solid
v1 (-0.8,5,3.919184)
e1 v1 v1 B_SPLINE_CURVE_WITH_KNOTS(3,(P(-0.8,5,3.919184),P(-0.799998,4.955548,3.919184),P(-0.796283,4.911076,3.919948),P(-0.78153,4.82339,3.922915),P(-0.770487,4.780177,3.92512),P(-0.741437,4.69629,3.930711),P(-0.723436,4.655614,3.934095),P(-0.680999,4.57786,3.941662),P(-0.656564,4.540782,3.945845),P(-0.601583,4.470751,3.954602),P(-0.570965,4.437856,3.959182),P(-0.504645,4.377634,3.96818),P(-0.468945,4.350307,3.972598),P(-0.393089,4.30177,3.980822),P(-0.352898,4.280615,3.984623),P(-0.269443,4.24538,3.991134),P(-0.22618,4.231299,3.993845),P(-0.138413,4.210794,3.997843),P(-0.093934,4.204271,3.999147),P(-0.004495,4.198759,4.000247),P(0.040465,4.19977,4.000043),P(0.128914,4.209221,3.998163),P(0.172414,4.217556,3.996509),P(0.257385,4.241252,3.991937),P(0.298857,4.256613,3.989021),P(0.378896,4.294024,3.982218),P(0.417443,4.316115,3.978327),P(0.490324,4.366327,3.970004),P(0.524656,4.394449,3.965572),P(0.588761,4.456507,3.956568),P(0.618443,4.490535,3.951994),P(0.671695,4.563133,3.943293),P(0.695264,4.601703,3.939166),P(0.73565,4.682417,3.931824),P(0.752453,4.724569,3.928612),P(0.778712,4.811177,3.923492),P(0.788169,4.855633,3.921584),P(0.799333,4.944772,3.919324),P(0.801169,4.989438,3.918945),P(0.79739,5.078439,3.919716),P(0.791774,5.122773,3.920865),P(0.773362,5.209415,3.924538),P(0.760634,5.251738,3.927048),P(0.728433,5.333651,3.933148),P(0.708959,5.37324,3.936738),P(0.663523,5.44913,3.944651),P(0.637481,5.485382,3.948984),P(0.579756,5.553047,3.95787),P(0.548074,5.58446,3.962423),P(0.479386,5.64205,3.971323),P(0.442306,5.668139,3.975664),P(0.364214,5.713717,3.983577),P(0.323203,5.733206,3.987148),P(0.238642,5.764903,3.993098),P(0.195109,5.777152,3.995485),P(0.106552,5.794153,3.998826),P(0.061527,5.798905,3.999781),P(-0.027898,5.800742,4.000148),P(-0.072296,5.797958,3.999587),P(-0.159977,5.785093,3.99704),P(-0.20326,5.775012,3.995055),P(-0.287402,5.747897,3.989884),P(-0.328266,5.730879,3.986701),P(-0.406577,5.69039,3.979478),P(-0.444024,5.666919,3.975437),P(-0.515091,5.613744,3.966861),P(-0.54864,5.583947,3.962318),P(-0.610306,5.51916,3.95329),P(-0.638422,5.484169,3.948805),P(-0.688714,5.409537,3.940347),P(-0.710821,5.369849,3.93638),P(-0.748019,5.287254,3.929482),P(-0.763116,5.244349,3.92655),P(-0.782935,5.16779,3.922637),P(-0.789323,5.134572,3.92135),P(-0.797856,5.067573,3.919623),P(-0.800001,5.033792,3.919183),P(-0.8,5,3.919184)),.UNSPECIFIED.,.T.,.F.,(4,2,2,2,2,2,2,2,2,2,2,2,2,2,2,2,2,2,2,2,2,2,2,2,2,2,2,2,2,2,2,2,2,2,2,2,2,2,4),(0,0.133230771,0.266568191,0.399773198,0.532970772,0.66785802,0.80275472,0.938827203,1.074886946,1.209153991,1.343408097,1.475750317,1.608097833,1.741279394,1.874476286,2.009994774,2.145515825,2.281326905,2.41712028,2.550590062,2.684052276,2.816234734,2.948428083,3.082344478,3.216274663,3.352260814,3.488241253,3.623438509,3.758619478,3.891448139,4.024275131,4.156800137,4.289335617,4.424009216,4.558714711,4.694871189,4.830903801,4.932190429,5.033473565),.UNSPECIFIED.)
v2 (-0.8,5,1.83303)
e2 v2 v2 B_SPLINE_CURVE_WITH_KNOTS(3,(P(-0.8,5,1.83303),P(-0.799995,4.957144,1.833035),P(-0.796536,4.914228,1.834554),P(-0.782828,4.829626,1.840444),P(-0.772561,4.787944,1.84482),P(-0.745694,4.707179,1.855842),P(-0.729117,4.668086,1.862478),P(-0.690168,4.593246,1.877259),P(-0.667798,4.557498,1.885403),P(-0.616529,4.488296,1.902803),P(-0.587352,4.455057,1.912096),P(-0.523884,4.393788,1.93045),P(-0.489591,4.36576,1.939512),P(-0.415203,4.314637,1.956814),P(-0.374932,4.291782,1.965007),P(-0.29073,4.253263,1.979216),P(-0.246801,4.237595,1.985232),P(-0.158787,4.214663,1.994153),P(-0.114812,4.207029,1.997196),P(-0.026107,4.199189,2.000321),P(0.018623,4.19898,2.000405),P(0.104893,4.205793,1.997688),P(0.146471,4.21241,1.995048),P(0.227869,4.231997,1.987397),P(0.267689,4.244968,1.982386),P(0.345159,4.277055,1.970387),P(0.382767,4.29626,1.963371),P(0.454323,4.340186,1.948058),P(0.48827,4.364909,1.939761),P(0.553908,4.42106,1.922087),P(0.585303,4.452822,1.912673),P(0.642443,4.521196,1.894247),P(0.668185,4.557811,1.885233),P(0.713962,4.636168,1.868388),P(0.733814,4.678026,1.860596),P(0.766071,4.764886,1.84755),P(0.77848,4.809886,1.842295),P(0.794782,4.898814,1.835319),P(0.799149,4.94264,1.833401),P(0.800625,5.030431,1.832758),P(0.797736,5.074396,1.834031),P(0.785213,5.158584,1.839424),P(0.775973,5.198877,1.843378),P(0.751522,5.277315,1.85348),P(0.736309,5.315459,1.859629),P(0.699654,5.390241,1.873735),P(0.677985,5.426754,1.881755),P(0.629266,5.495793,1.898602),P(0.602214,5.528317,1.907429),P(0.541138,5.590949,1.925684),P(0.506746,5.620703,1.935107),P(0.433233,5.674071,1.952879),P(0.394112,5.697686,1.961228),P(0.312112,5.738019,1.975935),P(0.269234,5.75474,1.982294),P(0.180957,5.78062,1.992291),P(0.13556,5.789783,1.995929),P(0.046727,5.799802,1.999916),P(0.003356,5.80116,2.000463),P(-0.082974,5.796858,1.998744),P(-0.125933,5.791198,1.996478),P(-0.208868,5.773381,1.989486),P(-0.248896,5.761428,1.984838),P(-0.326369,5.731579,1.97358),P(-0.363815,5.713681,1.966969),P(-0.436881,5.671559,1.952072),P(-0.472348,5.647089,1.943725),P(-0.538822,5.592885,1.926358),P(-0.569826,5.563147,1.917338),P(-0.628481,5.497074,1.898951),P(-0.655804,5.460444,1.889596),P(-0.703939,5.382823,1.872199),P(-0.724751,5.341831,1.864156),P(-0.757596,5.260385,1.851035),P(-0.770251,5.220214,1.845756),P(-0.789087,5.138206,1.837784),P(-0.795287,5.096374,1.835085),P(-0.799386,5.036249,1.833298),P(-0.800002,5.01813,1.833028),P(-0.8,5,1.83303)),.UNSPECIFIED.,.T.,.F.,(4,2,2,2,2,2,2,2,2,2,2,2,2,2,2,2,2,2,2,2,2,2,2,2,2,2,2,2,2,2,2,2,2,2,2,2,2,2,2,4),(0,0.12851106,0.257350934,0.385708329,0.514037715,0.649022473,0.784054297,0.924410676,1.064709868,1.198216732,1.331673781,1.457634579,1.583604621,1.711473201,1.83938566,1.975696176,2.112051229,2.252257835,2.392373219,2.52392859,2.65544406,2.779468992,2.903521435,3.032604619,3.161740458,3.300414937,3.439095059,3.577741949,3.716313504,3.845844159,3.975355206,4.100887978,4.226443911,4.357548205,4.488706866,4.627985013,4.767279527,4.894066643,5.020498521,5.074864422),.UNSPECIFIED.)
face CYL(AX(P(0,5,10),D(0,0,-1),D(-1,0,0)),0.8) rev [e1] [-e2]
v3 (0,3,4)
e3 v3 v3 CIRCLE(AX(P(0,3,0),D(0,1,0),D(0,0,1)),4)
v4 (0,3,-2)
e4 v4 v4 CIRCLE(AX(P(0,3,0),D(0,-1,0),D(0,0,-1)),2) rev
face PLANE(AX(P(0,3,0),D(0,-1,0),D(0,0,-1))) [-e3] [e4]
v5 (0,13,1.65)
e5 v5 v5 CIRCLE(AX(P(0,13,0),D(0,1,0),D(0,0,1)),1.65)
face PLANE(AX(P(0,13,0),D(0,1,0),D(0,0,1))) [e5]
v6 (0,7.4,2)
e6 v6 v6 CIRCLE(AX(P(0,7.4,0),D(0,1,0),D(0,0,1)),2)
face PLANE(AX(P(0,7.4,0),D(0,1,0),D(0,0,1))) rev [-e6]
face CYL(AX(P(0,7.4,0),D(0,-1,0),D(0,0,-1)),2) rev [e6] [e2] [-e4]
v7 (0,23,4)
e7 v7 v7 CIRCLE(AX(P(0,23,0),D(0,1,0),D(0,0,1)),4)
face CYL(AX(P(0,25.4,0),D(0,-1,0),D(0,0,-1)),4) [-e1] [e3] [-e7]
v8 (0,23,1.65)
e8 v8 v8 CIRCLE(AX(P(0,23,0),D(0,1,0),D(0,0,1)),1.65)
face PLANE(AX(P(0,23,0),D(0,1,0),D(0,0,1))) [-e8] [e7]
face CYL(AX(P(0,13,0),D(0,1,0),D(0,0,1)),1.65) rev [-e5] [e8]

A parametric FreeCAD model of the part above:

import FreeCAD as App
import Part
import Sketcher
from FreeCAD import Vector
Q = App.Units.Quantity

doc = App.newDocument("Part")
body = doc.addObject("PartDesign::Body", "Body")

# Sketch on XZ plane
sketch1 = body.newObject("Sketcher::SketchObject", "Sketch")
sketch1.AttachmentSupport = (doc.getObject("XZ_Plane"), [""])
sketch1.MapMode = "FlatFace"
sketch1.addGeometry(Part.Circle(Vector(0, 0, 0), Vector(0, 0, 1), 4), False)
sketch1.addConstraint([
    Sketcher.Constraint("Coincident", 0, 3, -1, 1),
    Sketcher.Constraint("Diameter", 0, Q("8 mm")),
])
pad1 = body.newObject("PartDesign::Pad", "Pad")
pad1.Profile = sketch1
pad1.Length = 25.4
pad1.Reversed = True

# Sketch on XZ plane
sketch2 = body.newObject("Sketcher::SketchObject", "Sketch001")
sketch2.AttachmentSupport = (doc.getObject("XZ_Plane"), [""])
sketch2.MapMode = "FlatFace"
sketch2.AttachmentOffset = App.Placement(Vector(0, 0, -25.4), App.Rotation())
sketch2.addGeometry(Part.Circle(Vector(0, 0, 0), Vector(0, 0, 1), 30), False)
sketch2.addConstraint([
    Sketcher.Constraint("Coincident", 0, 3, -1, 1),
    Sketcher.Constraint("Diameter", 0, Q("60 mm")),
])
pad2 = body.newObject("PartDesign::Pad", "Pad001")
pad2.Profile = sketch2
pad2.Length = 5
pad2.Reversed = True

# Sketch on XZ plane
sketch3 = body.newObject("Sketcher::SketchObject", "Sketch002")
sketch3.AttachmentSupport = (doc.getObject("XZ_Plane"), [""])
sketch3.MapMode = "FlatFace"
sketch3.AttachmentOffset = App.Placement(Vector(0, 0, -30.4), App.Rotation())
sketch3.addGeometry([
    Part.Circle(Vector(0, -10, 0), Vector(0, 0, 1), 2),
    Part.Circle(Vector(10, 0, 0), Vector(0, 0, 1), 2),
    Part.Circle(Vector(0, 10, 0), Vector(0, 0, 1), 2),
    Part.Circle(Vector(-10, 0, 0), Vector(0, 0, 1), 2),
], False)
sketch3.addConstraint([
    Sketcher.Constraint("Equal", 0, 1),
    Sketcher.Constraint("Equal", 1, 2),
    Sketcher.Constraint("Equal", 2, 3),
    Sketcher.Constraint("Symmetric", 0, 3, 2, 3, -1, 1),
    Sketcher.Constraint("Symmetric", 1, 3, 3, 3, -1, 1),
    Sketcher.Constraint("PointOnObject", 0, 3, -2),
    Sketcher.Constraint("PointOnObject", 1, 3, -1),
    Sketcher.Constraint("Diameter", 0, Q("4 mm")),
    Sketcher.Constraint("DistanceY", 0, 3, -1, 1, Q("10 mm")),
    Sketcher.Constraint("DistanceX", -1, 1, 1, 3, Q("10 mm")),
])
pocket1 = body.newObject("PartDesign::Pocket", "Pocket")
pocket1.Profile = sketch3
pocket1.Length = 7.5
pocket1.Reversed = True

# Sketch on XZ plane
sketch4 = body.newObject("Sketcher::SketchObject", "Sketch003")
sketch4.AttachmentSupport = (doc.getObject("XZ_Plane"), [""])
sketch4.MapMode = "FlatFace"
sketch4.addGeometry(Part.Circle(Vector(0, 0, 0), Vector(0, 0, 1), 3.5), False)
sketch4.addConstraint([
    Sketcher.Constraint("Coincident", 0, 3, -1, 1),
    Sketcher.Constraint("Diameter", 0, Q("7 mm")),
])
pocket2 = body.newObject("PartDesign::Pocket", "Pocket001")
pocket2.Profile = sketch4
pocket2.Length = 3

# Sketch on YZ plane
sketch5 = body.newObject("Sketcher::SketchObject", "Sketch004")
sketch5.AttachmentSupport = (doc.getObject("YZ_Plane"), [""])
sketch5.MapMode = "FlatFace"
sketch5.addGeometry([
    Part.LineSegment(Vector(3, 27.07243, 0), Vector(0, 27.07243, 0)),
    Part.LineSegment(Vector(0, 27.07243, 0), Vector(0, -35.625916, 0)),
    Part.LineSegment(Vector(0, -35.625916, 0), Vector(3, -35.625916, 0)),
    Part.LineSegment(Vector(3, -35.625916, 0), Vector(3, 27.07243, 0)),
], False)
sketch5.addConstraint([
    Sketcher.Constraint("Coincident", 0, 2, 1, 1),
    Sketcher.Constraint("Coincident", 1, 2, 2, 1),
    Sketcher.Constraint("Coincident", 2, 2, 3, 1),
    Sketcher.Constraint("Coincident", 3, 2, 0, 1),
    Sketcher.Constraint("Horizontal", 0),
    Sketcher.Constraint("Vertical", 1),
    Sketcher.Constraint("Horizontal", 2),
    Sketcher.Constraint("Vertical", 3),
    Sketcher.Constraint("PointOnObject", 0, 2, -2),
    Sketcher.Constraint("DistanceX", 0, 2, 0, 1, Q("3 mm")),
    Sketcher.Constraint("DistanceY", 1, 2, 1, 1, Q("62.698346 mm")),
    Sketcher.Constraint("DistanceY", -1, 1, 0, 2, Q("27.07243 mm")),
])
pocket3 = body.newObject("PartDesign::Pocket", "Pocket002")
pocket3.Profile = sketch5
pocket3.Length = 30
pocket3.Midplane = True

# Sketch on XZ plane
sketch6 = body.newObject("Sketcher::SketchObject", "Sketch005")
sketch6.AttachmentSupport = (doc.getObject("XZ_Plane"), [""])
sketch6.MapMode = "FlatFace"
sketch6.addGeometry(Part.Circle(Vector(0, 0, 0), Vector(0, 0, 1), 2), False)
sketch6.addConstraint([
    Sketcher.Constraint("Coincident", 0, 3, -1, 1),
    Sketcher.Constraint("Diameter", 0, Q("4 mm")),
])
pocket4 = body.newObject("PartDesign::Pocket", "Pocket003")
pocket4.Profile = sketch6
pocket4.Length = 7.4

# Sketch on XY plane
sketch7 = body.newObject("Sketcher::SketchObject", "Sketch006")
sketch7.AttachmentSupport = (doc.getObject("XY_Plane"), [""])
sketch7.MapMode = "FlatFace"
sketch7.addGeometry(Part.Circle(Vector(0, 5, 0), Vector(0, 0, 1), 0.8), False)
sketch7.addConstraint([
    Sketcher.Constraint("PointOnObject", 0, 3, -2),
    Sketcher.Constraint("Diameter", 0, Q("1.6 mm")),
    Sketcher.Constraint("DistanceY", -1, 1, 0, 3, Q("5 mm")),
])
pocket5 = body.newObject("PartDesign::Pocket", "Pocket004")
pocket5.Profile = sketch7
pocket5.Length = 10
pocket5.Reversed = True

# Sketch on XZ plane
sketch8 = body.newObject("Sketcher::SketchObject", "Sketch007")
sketch8.AttachmentSupport = (doc.getObject("XZ_Plane"), [""])
sketch8.MapMode = "FlatFace"
sketch8.AttachmentOffset = App.Placement(Vector(0, 0, -30.4), App.Rotation())
sketch8.addGeometry(Part.Circle(Vector(0, 0, 0), Vector(0, 0, 1), 30), False)
sketch8.addConstraint([
    Sketcher.Constraint("Coincident", 0, 3, -1, 1),
    Sketcher.Constraint("Diameter", 0, Q("60 mm")),
])
pocket6 = body.newObject("PartDesign::Pocket", "Pocket005")
pocket6.Profile = sketch8
pocket6.Length = 7.4
pocket6.Reversed = True

# Sketch on XZ plane
sketch9 = body.newObject("Sketcher::SketchObject", "Sketch008")
sketch9.AttachmentSupport = (doc.getObject("XZ_Plane"), [""])
sketch9.MapMode = "FlatFace"
sketch9.AttachmentOffset = App.Placement(Vector(0, 0, -23), App.Rotation())
sketch9.addGeometry(Part.Circle(Vector(0, 0, 0), Vector(0, 0, 1), 1.65), False)
sketch9.addConstraint([
    Sketcher.Constraint("Coincident", 0, 3, -1, 1),
    Sketcher.Constraint("Diameter", 0, Q("3.3 mm")),
])
pocket7 = body.newObject("PartDesign::Pocket", "Pocket006")
pocket7.Profile = sketch9
pocket7.Length = 10
pocket7.Reversed = True

doc.recompute()
